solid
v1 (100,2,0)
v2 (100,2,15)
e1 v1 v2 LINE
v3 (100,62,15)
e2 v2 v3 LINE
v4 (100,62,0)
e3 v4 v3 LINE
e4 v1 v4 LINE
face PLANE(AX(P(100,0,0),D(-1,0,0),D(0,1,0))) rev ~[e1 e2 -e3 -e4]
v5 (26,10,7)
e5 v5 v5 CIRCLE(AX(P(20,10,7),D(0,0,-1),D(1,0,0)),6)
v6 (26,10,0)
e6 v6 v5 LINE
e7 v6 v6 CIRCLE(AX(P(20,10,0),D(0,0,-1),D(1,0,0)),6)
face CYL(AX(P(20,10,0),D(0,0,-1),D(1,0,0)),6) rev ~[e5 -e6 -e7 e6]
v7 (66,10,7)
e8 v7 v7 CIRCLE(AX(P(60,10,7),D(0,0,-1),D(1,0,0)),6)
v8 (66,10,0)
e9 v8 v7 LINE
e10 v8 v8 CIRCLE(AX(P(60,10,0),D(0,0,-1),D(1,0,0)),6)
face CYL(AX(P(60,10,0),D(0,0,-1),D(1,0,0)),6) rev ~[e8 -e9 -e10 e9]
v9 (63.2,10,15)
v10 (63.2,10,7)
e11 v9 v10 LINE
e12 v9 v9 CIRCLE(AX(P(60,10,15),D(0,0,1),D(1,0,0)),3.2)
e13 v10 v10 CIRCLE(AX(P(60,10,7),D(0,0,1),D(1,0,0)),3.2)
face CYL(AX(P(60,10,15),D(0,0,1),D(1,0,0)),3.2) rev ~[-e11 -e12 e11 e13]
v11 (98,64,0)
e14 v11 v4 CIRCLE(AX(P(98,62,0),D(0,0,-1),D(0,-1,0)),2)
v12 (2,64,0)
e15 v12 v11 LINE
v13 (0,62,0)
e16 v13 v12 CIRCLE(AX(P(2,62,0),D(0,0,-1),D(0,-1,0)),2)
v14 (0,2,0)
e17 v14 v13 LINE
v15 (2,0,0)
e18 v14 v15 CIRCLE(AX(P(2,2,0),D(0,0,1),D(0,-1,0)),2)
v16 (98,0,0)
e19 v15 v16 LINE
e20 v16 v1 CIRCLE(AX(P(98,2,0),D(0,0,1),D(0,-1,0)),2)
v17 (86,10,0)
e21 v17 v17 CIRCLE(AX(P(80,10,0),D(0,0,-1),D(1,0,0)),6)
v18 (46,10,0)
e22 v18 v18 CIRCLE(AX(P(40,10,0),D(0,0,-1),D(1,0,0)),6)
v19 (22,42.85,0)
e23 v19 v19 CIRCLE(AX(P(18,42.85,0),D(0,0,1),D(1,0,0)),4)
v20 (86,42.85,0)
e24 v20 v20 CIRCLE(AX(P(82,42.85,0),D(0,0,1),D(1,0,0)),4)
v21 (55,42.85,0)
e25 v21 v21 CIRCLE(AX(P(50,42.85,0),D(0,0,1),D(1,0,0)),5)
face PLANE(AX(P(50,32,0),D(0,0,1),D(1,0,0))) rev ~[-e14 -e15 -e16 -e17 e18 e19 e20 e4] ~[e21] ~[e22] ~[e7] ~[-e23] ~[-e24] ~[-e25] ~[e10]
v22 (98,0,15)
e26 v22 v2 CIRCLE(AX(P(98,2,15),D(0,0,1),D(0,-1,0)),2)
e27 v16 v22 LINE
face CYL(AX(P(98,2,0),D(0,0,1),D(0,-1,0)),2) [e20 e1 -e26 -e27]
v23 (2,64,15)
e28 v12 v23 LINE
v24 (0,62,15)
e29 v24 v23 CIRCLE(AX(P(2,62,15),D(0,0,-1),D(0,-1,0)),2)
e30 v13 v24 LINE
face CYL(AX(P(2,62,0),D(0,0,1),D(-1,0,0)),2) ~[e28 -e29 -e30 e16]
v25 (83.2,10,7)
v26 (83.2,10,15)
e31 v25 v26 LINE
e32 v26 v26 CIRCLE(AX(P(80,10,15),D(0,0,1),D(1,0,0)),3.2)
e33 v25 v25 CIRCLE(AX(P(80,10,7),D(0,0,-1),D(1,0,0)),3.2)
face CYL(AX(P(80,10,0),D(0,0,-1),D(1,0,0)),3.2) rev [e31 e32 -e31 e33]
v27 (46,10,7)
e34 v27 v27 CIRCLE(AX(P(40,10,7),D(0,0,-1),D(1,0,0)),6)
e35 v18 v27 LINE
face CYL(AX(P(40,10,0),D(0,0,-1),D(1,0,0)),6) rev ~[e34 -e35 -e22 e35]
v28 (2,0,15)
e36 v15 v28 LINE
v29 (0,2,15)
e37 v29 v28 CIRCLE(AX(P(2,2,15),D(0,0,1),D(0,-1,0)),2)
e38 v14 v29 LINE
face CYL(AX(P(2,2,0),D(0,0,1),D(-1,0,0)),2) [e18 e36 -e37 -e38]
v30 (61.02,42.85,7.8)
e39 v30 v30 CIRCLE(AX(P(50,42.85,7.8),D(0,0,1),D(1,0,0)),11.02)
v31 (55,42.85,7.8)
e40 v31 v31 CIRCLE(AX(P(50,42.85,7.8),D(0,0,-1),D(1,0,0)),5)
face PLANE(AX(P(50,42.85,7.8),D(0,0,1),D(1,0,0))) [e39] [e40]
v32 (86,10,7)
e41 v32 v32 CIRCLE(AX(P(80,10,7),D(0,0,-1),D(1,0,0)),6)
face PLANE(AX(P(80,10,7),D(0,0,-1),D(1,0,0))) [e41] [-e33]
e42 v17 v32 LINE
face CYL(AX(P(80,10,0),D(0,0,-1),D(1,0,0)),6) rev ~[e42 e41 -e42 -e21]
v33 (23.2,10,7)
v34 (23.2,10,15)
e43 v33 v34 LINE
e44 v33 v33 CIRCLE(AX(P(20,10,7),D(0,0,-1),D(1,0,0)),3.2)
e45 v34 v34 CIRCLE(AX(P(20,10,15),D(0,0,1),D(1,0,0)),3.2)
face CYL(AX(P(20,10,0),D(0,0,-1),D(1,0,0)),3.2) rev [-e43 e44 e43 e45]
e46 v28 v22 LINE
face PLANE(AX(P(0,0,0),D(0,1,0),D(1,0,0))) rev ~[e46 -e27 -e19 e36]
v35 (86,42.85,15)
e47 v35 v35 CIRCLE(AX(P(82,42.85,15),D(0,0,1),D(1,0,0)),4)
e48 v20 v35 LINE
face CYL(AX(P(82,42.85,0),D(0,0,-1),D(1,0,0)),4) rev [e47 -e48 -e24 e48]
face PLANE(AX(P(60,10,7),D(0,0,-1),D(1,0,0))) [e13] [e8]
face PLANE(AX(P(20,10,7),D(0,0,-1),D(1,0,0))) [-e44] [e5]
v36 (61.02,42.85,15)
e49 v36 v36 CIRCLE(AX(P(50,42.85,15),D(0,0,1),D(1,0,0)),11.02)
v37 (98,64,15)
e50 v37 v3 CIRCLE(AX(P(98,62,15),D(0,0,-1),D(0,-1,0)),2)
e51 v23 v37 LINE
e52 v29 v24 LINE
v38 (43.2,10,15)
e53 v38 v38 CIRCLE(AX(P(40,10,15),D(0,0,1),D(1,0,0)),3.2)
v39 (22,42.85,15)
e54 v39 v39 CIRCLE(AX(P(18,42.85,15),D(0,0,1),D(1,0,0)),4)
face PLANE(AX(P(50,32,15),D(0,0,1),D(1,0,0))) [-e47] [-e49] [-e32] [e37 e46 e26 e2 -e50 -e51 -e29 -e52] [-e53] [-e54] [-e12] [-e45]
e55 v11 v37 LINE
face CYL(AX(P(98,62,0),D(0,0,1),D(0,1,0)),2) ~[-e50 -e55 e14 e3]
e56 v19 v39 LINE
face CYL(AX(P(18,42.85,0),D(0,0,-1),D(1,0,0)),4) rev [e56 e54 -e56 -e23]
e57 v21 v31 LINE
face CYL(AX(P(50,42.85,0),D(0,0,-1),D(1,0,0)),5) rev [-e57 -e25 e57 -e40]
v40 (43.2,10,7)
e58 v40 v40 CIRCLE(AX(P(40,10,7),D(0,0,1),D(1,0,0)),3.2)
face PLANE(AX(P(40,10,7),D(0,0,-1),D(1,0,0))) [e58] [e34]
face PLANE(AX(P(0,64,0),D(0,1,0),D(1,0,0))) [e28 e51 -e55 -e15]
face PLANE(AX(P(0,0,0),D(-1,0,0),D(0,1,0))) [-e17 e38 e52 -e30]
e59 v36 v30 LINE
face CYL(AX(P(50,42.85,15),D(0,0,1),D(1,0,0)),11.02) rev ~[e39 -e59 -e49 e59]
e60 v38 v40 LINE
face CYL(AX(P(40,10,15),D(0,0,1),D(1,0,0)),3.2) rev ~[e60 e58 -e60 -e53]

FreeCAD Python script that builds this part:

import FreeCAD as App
import Part
import Sketcher


def edges_at(feature, points):
    """Names of the edges that pass closest to the given points."""
    edges = feature.Shape.Edges
    near = lambda p: min(range(len(edges)), key=lambda i: edges[i].distToShape(Part.Vertex(*p))[0])
    return sorted({f"Edge{near(p) + 1}" for p in points})


def add_polygon(sketch, points):
    """Adds a closed chain of lines whose ends are joined by coincident constraints."""
    first, n = sketch.GeometryCount, len(points)
    for a, b in zip(points, points[1:] + points[:1]):
        sketch.addGeometry(Part.LineSegment(App.Vector(*a, 0), App.Vector(*b, 0)), False)
    for i in range(n):
        sketch.addConstraint(Sketcher.Constraint("Coincident", first + i, 2, first + (i + 1) % n, 1))

doc = App.newDocument("Part")
body = doc.addObject("PartDesign::Body", "Body")

# Sketch on XY plane
sketch1 = body.newObject("Sketcher::SketchObject", "Sketch")
sketch1.AttachmentSupport = (doc.getObject("XY_Plane"), [""])
sketch1.MapMode = "FlatFace"
add_polygon(sketch1, [(0, 64), (0, 0), (100, 0), (100, 64)])  # lines 0-3
sketch1.addGeometry(Part.Circle(App.Vector(20, 10, 0), App.Vector(0, 0, 1), 3.2), False)  # 4
sketch1.addGeometry(Part.Circle(App.Vector(80, 10, 0), App.Vector(0, 0, 1), 3.2), False)  # 5
sketch1.addGeometry(Part.Circle(App.Vector(18, 42.9, 0), App.Vector(0, 0, 1), 4), False)  # 6
sketch1.addGeometry(Part.Circle(App.Vector(50, 42.9, 0), App.Vector(0, 0, 1), 5), False)  # 7
sketch1.addGeometry(Part.Circle(App.Vector(82, 42.9, 0), App.Vector(0, 0, 1), 4), False)  # 8
sketch1.addConstraint(Sketcher.Constraint("Vertical", 0))
sketch1.addConstraint(Sketcher.Constraint("Horizontal", 1))
sketch1.addConstraint(Sketcher.Constraint("Vertical", 2))
sketch1.addConstraint(Sketcher.Constraint("Horizontal", 3))
sketch1.addConstraint(Sketcher.Constraint("Coincident", 0, 2, -1, 1))
sketch1.addConstraint(Sketcher.Constraint("Equal", 4, 5))
sketch1.addConstraint(Sketcher.Constraint("Equal", 6, 8))
sketch1.addConstraint(Sketcher.Constraint("Horizontal", 4, 3, 5, 3))
sketch1.addConstraint(Sketcher.Constraint("Horizontal", 6, 3, 7, 3))
sketch1.addConstraint(Sketcher.Constraint("Horizontal", 7, 3, 8, 3))
sketch1.addConstraint(Sketcher.Constraint("Diameter", 6, 8.0))
sketch1.addConstraint(Sketcher.Constraint("Diameter", 7, 10.0))
sketch1.addConstraint(Sketcher.Constraint("Diameter", 4, 6.4))
sketch1.addConstraint(Sketcher.Constraint("DistanceX", 1, 1, 1, 2, 100.0))
sketch1.addConstraint(Sketcher.Constraint("DistanceY", 0, 2, 0, 1, 64.0))
sketch1.addConstraint(Sketcher.Constraint("DistanceX", -1, 1, 4, 3, 20.0))
sketch1.addConstraint(Sketcher.Constraint("DistanceY", -1, 1, 4, 3, 10.0))
sketch1.addConstraint(Sketcher.Constraint("DistanceX", -1, 1, 5, 3, 80.0))
sketch1.addConstraint(Sketcher.Constraint("DistanceX", -1, 1, 6, 3, 18.0))
sketch1.addConstraint(Sketcher.Constraint("DistanceX", -1, 1, 7, 3, 50.0))
sketch1.addConstraint(Sketcher.Constraint("DistanceX", -1, 1, 8, 3, 82.0))
sketch1.addConstraint(Sketcher.Constraint("DistanceY", -1, 1, 6, 3, 42.85))
pad1 = body.newObject("PartDesign::Pad", "Pad")
pad1.Profile = sketch1
pad1.Length = 15

# Sketch on XY plane
sketch2 = body.newObject("Sketcher::SketchObject", "Sketch001")
sketch2.AttachmentSupport = (doc.getObject("XY_Plane"), [""])
sketch2.MapMode = "FlatFace"
sketch2.AttachmentOffset = App.Placement(App.Vector(0, 0, 15), App.Rotation())
sketch2.addGeometry(Part.Circle(App.Vector(50, 43, 0), App.Vector(0, 0, 1), 11), False)
sketch2.addConstraint(Sketcher.Constraint("Diameter", 0, 22.04))
sketch2.addConstraint(Sketcher.Constraint("DistanceX", -1, 1, 0, 3, 50.0))
sketch2.addConstraint(Sketcher.Constraint("DistanceY", -1, 1, 0, 3, 42.85))
pocket1 = body.newObject("PartDesign::Pocket", "Pocket")
pocket1.Profile = sketch2
pocket1.Length = 7.2

# Sketch on XY plane
sketch3 = body.newObject("Sketcher::SketchObject", "Sketch002")
sketch3.AttachmentSupport = (doc.getObject("XY_Plane"), [""])
sketch3.MapMode = "FlatFace"
sketch3.addGeometry(Part.Circle(App.Vector(20, 10, 0), App.Vector(0, 0, 1), 6), False)
sketch3.addGeometry(Part.Circle(App.Vector(80, 10, 0), App.Vector(0, 0, 1), 6), False)
sketch3.addGeometry(Part.Circle(App.Vector(40, 10, 0), App.Vector(0, 0, 1), 6), False)
sketch3.addGeometry(Part.Circle(App.Vector(60, 10, 0), App.Vector(0, 0, 1), 6), False)
sketch3.addConstraint(Sketcher.Constraint("Equal", 0, 1))
sketch3.addConstraint(Sketcher.Constraint("Equal", 1, 2))
sketch3.addConstraint(Sketcher.Constraint("Equal", 2, 3))
sketch3.addConstraint(Sketcher.Constraint("Horizontal", 0, 3, 1, 3))
sketch3.addConstraint(Sketcher.Constraint("Horizontal", 1, 3, 2, 3))
sketch3.addConstraint(Sketcher.Constraint("Horizontal", 2, 3, 3, 3))
sketch3.addConstraint(Sketcher.Constraint("Diameter", 0, 12.0))
sketch3.addConstraint(Sketcher.Constraint("DistanceX", -1, 1, 0, 3, 20.0))
sketch3.addConstraint(Sketcher.Constraint("DistanceY", -1, 1, 0, 3, 10.0))
sketch3.addConstraint(Sketcher.Constraint("DistanceX", -1, 1, 1, 3, 80.0))
sketch3.addConstraint(Sketcher.Constraint("DistanceX", -1, 1, 2, 3, 40.0))
sketch3.addConstraint(Sketcher.Constraint("DistanceX", -1, 1, 3, 3, 60.0))
pocket2 = body.newObject("PartDesign::Pocket", "Pocket001")
pocket2.Profile = sketch3
pocket2.Length = 7
pocket2.Reversed = True

# Sketch on XY plane
sketch4 = body.newObject("Sketcher::SketchObject", "Sketch003")
sketch4.AttachmentSupport = (doc.getObject("XY_Plane"), [""])
sketch4.MapMode = "FlatFace"
sketch4.AttachmentOffset = App.Placement(App.Vector(0, 0, 15), App.Rotation())
sketch4.addGeometry(Part.Circle(App.Vector(40, 10, 0), App.Vector(0, 0, 1), 3.2), False)
sketch4.addGeometry(Part.Circle(App.Vector(60, 10, 0), App.Vector(0, 0, 1), 3.2), False)
sketch4.addConstraint(Sketcher.Constraint("Equal", 0, 1))
sketch4.addConstraint(Sketcher.Constraint("Horizontal", 0, 3, 1, 3))
sketch4.addConstraint(Sketcher.Constraint("Diameter", 0, 6.4))
sketch4.addConstraint(Sketcher.Constraint("DistanceX", -1, 1, 0, 3, 40.0))
sketch4.addConstraint(Sketcher.Constraint("DistanceY", -1, 1, 0, 3, 10.0))
sketch4.addConstraint(Sketcher.Constraint("DistanceX", -1, 1, 1, 3, 60.0))
pocket3 = body.newObject("PartDesign::Pocket", "Pocket002")
pocket3.Profile = sketch4
pocket3.Length = 15
doc.recompute()

fillet = body.newObject("PartDesign::Fillet", "Fillet")
fillet.Base = (pocket3, edges_at(pocket3, [
    (0, 64, 7.5),
    (100, 64, 7.5),
    (0, 0, 7.5),
    (100, 0, 7.5),
]))
fillet.Radius = 2

doc.recompute()
